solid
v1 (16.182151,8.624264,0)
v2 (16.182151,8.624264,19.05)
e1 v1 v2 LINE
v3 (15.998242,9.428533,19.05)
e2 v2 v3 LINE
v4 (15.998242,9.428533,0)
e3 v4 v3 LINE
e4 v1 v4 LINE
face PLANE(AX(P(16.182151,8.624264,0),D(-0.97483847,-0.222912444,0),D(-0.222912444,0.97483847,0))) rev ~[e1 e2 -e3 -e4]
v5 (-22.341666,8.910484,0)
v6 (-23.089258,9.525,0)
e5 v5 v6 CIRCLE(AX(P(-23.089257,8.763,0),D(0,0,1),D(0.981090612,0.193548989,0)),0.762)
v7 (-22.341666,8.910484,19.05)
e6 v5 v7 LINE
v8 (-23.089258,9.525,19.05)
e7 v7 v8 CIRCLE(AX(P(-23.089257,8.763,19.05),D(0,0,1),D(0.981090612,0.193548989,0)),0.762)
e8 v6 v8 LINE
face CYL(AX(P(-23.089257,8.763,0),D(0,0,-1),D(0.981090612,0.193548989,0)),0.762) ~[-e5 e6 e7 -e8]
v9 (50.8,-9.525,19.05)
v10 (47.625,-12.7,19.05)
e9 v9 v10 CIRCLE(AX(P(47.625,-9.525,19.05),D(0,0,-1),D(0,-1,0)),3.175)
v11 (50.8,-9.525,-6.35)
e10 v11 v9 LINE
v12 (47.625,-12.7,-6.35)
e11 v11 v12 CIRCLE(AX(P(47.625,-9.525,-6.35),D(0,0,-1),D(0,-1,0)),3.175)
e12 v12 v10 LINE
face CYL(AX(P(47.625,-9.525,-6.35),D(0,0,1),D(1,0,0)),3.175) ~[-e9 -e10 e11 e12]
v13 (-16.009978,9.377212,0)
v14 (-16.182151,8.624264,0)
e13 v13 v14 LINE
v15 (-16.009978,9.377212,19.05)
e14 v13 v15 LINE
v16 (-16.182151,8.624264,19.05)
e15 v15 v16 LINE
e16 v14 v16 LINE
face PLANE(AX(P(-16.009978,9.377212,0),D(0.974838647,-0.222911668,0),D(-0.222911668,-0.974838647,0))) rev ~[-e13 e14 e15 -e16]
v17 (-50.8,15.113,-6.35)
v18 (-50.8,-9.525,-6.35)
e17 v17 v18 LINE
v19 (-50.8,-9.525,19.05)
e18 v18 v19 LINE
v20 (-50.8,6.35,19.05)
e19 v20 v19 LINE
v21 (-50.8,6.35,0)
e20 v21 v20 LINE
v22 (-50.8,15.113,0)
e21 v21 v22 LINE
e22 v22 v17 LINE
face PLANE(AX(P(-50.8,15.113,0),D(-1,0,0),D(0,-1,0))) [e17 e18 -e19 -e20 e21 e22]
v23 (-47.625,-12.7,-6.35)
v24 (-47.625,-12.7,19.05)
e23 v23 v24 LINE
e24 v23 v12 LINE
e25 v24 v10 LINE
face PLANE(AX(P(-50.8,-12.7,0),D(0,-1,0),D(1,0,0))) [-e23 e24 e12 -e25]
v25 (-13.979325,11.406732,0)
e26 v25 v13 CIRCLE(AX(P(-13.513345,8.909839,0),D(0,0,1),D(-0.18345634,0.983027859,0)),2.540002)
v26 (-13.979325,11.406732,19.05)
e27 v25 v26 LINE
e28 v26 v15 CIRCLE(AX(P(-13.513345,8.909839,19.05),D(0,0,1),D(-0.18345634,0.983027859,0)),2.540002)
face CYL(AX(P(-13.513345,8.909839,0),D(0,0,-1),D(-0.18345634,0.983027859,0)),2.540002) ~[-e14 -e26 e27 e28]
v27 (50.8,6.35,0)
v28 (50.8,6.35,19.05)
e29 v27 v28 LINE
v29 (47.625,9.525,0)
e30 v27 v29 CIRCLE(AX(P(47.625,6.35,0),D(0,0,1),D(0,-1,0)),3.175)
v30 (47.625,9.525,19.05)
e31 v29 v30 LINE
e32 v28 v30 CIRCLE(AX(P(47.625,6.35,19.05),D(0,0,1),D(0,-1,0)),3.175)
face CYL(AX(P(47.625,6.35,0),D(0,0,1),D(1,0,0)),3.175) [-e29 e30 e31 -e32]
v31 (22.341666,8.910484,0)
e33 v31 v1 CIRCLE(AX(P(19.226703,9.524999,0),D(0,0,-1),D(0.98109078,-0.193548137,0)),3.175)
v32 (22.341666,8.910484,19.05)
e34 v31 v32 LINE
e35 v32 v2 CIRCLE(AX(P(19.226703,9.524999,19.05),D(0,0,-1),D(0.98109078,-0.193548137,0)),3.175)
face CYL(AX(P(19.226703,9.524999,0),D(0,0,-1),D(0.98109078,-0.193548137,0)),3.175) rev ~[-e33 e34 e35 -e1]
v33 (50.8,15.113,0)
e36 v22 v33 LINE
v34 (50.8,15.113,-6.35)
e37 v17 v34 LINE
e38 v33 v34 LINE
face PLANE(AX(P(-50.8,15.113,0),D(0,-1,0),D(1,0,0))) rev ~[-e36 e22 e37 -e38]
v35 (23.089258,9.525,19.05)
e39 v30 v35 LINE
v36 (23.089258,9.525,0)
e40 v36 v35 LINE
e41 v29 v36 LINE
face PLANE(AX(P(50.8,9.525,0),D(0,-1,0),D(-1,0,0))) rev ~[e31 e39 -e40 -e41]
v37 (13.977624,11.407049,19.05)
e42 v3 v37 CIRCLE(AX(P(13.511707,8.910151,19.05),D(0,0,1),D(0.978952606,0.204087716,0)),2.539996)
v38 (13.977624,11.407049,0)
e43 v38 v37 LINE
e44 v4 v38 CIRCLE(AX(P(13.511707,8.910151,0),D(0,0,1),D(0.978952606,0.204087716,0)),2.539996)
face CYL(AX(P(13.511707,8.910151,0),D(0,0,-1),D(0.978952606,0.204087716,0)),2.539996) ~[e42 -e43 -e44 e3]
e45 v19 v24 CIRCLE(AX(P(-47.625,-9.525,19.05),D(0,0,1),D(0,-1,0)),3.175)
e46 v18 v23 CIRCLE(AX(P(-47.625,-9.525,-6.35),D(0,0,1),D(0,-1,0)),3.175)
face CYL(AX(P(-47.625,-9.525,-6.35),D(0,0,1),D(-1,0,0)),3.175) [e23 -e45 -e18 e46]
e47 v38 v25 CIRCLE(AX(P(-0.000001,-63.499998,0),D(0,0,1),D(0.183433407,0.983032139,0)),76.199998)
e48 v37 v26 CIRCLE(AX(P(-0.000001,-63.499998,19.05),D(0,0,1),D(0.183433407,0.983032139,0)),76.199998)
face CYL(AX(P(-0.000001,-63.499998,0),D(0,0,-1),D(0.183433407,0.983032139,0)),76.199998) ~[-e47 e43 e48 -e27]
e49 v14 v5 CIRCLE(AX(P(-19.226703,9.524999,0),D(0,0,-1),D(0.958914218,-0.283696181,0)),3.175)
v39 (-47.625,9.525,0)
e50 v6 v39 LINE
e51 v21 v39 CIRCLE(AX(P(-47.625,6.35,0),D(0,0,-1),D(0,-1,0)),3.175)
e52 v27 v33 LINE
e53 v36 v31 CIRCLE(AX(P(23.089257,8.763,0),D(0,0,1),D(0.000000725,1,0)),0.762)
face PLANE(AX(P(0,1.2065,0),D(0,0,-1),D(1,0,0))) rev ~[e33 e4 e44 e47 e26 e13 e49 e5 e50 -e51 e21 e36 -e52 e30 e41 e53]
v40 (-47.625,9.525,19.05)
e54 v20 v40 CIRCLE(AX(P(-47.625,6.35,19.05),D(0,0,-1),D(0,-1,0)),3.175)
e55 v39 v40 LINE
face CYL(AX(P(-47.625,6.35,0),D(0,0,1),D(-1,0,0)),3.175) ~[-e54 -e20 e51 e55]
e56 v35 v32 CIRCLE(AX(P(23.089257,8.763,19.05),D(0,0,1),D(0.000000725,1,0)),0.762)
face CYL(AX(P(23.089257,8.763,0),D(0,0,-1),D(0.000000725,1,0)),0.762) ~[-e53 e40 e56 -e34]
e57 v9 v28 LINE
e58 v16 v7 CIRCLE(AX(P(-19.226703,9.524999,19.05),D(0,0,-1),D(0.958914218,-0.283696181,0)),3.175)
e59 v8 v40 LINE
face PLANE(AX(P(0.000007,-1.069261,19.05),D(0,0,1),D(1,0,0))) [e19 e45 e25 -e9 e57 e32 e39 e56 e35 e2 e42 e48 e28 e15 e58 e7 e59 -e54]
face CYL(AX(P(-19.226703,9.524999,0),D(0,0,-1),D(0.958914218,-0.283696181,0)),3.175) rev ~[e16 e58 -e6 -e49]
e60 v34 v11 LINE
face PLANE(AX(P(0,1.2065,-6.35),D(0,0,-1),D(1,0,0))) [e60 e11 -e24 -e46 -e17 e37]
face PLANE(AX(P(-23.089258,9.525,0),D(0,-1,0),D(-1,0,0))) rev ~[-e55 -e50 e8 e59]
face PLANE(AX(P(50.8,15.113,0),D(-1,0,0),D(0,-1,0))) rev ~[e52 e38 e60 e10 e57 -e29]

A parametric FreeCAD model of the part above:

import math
import FreeCAD as App
import Part
import Sketcher
Q = App.Units.Quantity


def edges_at(feature, points):
    """Names of the edges that pass closest to the given points."""
    edges = feature.Shape.Edges
    near = lambda p: min(range(len(edges)), key=lambda i: edges[i].distToShape(Part.Vertex(*p))[0])
    return sorted({f"Edge{near(p) + 1}" for p in points})

doc = App.newDocument("Part")
body = doc.addObject("PartDesign::Body", "Body")

# Sketch on XY plane
sketch1 = body.newObject("Sketcher::SketchObject", "Sketch")
sketch1.AttachmentSupport = (doc.getObject("XY_Plane"), [""])
sketch1.MapMode = "FlatFace"
sketch1.addGeometry(Part.LineSegment(App.Vector(-50.8, -12.7, 0), App.Vector(50.8, -12.7, 0)), False)
sketch1.addGeometry(Part.LineSegment(App.Vector(50.8, -12.7, 0), App.Vector(50.8, 9.5, 0)), False)
sketch1.addGeometry(Part.LineSegment(App.Vector(50.8, 9.5, 0), App.Vector(23.1, 9.5, 0)), False)
sketch1.addGeometry(Part.ArcOfCircle(Part.Circle(App.Vector(23.1, 8.8, 0), App.Vector(0, 0, 1), 0.8), math.radians(90), math.radians(169)), False)
sketch1.addGeometry(Part.ArcOfCircle(Part.Circle(App.Vector(19.2, 9.5, 0), App.Vector(0, 0, 1), 3.2), math.radians(-164), math.radians(-11)), False)
sketch1.addGeometry(Part.LineSegment(App.Vector(16.2, 8.6, 0), App.Vector(16, 9.4, 0)), False)
sketch1.addGeometry(Part.ArcOfCircle(Part.Circle(App.Vector(13.5, 8.9, 0), App.Vector(0, 0, 1), 2.5), math.radians(12), math.radians(79)), False)
sketch1.addGeometry(Part.ArcOfCircle(Part.Circle(App.Vector(0, -63.5, 0), App.Vector(0, 0, 1), 76.2), math.radians(79), math.radians(101)), False)
sketch1.addGeometry(Part.ArcOfCircle(Part.Circle(App.Vector(-13.5, 8.9, 0), App.Vector(0, 0, 1), 2.5), math.radians(101), math.radians(169)), False)
sketch1.addGeometry(Part.LineSegment(App.Vector(-16, 9.4, 0), App.Vector(-16.2, 8.6, 0)), False)
sketch1.addGeometry(Part.ArcOfCircle(Part.Circle(App.Vector(-19.2, 9.5, 0), App.Vector(0, 0, 1), 3.2), math.radians(-169), math.radians(-16)), False)
sketch1.addGeometry(Part.ArcOfCircle(Part.Circle(App.Vector(-23.1, 8.8, 0), App.Vector(0, 0, 1), 0.8), math.radians(11), math.radians(90)), False)
sketch1.addGeometry(Part.LineSegment(App.Vector(-23.1, 9.5, 0), App.Vector(-50.8, 9.5, 0)), False)
sketch1.addGeometry(Part.LineSegment(App.Vector(-50.8, 9.5, 0), App.Vector(-50.8, -12.7, 0)), False)
sketch1.addConstraint(Sketcher.Constraint("Coincident", 0, 2, 1, 1))
sketch1.addConstraint(Sketcher.Constraint("Coincident", 1, 2, 2, 1))
sketch1.addConstraint(Sketcher.Constraint("Tangent", 2, 2, 3, 1))
sketch1.addConstraint(Sketcher.Constraint("Tangent", 3, 2, 4, 2))
sketch1.addConstraint(Sketcher.Constraint("Coincident", 4, 1, 5, 1))
sketch1.addConstraint(Sketcher.Constraint("Coincident", 5, 2, 6, 1))
sketch1.addConstraint(Sketcher.Constraint("Tangent", 6, 2, 7, 1))
sketch1.addConstraint(Sketcher.Constraint("Tangent", 7, 2, 8, 1))
sketch1.addConstraint(Sketcher.Constraint("Coincident", 8, 2, 9, 1))
sketch1.addConstraint(Sketcher.Constraint("Coincident", 9, 2, 10, 2))
sketch1.addConstraint(Sketcher.Constraint("Tangent", 10, 1, 11, 1))
sketch1.addConstraint(Sketcher.Constraint("Tangent", 11, 2, 12, 1))
sketch1.addConstraint(Sketcher.Constraint("Coincident", 12, 2, 13, 1))
sketch1.addConstraint(Sketcher.Constraint("Coincident", 13, 2, 0, 1))
sketch1.addConstraint(Sketcher.Constraint("Horizontal", 0))
sketch1.addConstraint(Sketcher.Constraint("Vertical", 1))
sketch1.addConstraint(Sketcher.Constraint("Horizontal", 2))
sketch1.addConstraint(Sketcher.Constraint("Horizontal", 12))
sketch1.addConstraint(Sketcher.Constraint("Vertical", 13))
sketch1.addConstraint(Sketcher.Constraint("Equal", 4, 10))
sketch1.addConstraint(Sketcher.Constraint("Equal", 3, 11))
sketch1.addConstraint(Sketcher.Constraint("Symmetric", 4, 3, 10, 3, -2))
sketch1.addConstraint(Sketcher.Constraint("Symmetric", 1, 2, 12, 2, -2))
sketch1.addConstraint(Sketcher.Constraint("PointOnObject", 7, 3, -2))
sketch1.addConstraint(Sketcher.Constraint("Horizontal", 10, 3, 1, 2))
sketch1.addConstraint(Sketcher.Constraint("Horizontal", 4, 1, 9, 2))
sketch1.addConstraint(Sketcher.Constraint("Radius", 7, Q("2.9999999 in")))
sketch1.addConstraint(Sketcher.Constraint("Radius", 6, Q("0.0999998 in")))
sketch1.addConstraint(Sketcher.Constraint("Radius", 8, Q("0.1000001 in")))
sketch1.addConstraint(Sketcher.Constraint("DistanceX", 0, 1, 0, 2, Q("4 in")))
sketch1.addConstraint(Sketcher.Constraint("Radius", 3, Q("0.03 in")))
sketch1.addConstraint(Sketcher.Constraint("Radius", 4, Q("0.125 in")))
sketch1.addConstraint(Sketcher.Constraint("DistanceY", 7, 3, 0, 2, Q("1.9999999 in")))
sketch1.addConstraint(Sketcher.Constraint("DistanceY", 7, 3, -1, 1, Q("2.4999999 in")))
sketch1.addConstraint(Sketcher.Constraint("DistanceY", 1, 1, 1, 2, Q("0.875 in")))
sketch1.addConstraint(Sketcher.Constraint("DistanceX", 6, 3, 4, 3, Q("0.2249999 in")))
sketch1.addConstraint(Sketcher.Constraint("DistanceX", -1, 1, 6, 2, Q("0.5503002 in")))
sketch1.addConstraint(Sketcher.Constraint("DistanceY", -1, 1, 8, 3, 8.909839))
sketch1.addConstraint(Sketcher.Constraint("DistanceX", -1, 1, 4, 1, 16.182151))
sketch1.addConstraint(Sketcher.Constraint("DistanceX", 8, 2, -1, 1, 16.009978))
sketch1.addConstraint(Sketcher.Constraint("DistanceX", 5, 2, 4, 1, 0.183909))
pad1 = body.newObject("PartDesign::Pad", "Pad")
pad1.Profile = sketch1
pad1.Length = Q("0.75 in")

# Sketch on XY plane
sketch2 = body.newObject("Sketcher::SketchObject", "Sketch001")
sketch2.AttachmentSupport = (doc.getObject("XY_Plane"), [""])
sketch2.MapMode = "FlatFace"
sketch2.addGeometry(Part.LineSegment(App.Vector(-51, -13, 0), App.Vector(-51, 15, 0)), False)
sketch2.addGeometry(Part.LineSegment(App.Vector(-51, 15, 0), App.Vector(51, 15, 0)), False)
sketch2.addGeometry(Part.LineSegment(App.Vector(51, 15, 0), App.Vector(51, -13, 0)), False)
sketch2.addGeometry(Part.LineSegment(App.Vector(51, -13, 0), App.Vector(-51, -13, 0)), False)
sketch2.addConstraint(Sketcher.Constraint("Coincident", 0, 2, 1, 1))
sketch2.addConstraint(Sketcher.Constraint("Coincident", 1, 2, 2, 1))
sketch2.addConstraint(Sketcher.Constraint("Coincident", 2, 2, 3, 1))
sketch2.addConstraint(Sketcher.Constraint("Coincident", 3, 2, 0, 1))
sketch2.addConstraint(Sketcher.Constraint("Vertical", 0))
sketch2.addConstraint(Sketcher.Constraint("Horizontal", 1))
sketch2.addConstraint(Sketcher.Constraint("Vertical", 2))
sketch2.addConstraint(Sketcher.Constraint("Horizontal", 3))
sketch2.addConstraint(Sketcher.Constraint("DistanceX", 1, 1, 1, 2, Q("4 in")))
sketch2.addConstraint(Sketcher.Constraint("DistanceX", 0, 2, -1, 1, Q("2 in")))
sketch2.addConstraint(Sketcher.Constraint("DistanceY", 2, 2, -1, 1, Q("0.5 in")))
sketch2.addConstraint(Sketcher.Constraint("DistanceY", 0, 1, 0, 2, Q("1.095 in")))
pad2 = body.newObject("PartDesign::Pad", "Pad001")
pad2.Profile = sketch2
pad2.Length = Q("0.25 in")
pad2.Reversed = True
doc.recompute()

fillet = body.newObject("PartDesign::Fillet", "Fillet")
fillet.Base = (pad2, edges_at(pad2, [
    (50.8, 9.525, 9.525),
    (-50.8, 9.525, 9.525),
    (-50.8, -12.7, 6.35),
    (50.8, -12.7, 6.35),
]))
fillet.Radius = Q("0.125 in")

doc.recompute()
